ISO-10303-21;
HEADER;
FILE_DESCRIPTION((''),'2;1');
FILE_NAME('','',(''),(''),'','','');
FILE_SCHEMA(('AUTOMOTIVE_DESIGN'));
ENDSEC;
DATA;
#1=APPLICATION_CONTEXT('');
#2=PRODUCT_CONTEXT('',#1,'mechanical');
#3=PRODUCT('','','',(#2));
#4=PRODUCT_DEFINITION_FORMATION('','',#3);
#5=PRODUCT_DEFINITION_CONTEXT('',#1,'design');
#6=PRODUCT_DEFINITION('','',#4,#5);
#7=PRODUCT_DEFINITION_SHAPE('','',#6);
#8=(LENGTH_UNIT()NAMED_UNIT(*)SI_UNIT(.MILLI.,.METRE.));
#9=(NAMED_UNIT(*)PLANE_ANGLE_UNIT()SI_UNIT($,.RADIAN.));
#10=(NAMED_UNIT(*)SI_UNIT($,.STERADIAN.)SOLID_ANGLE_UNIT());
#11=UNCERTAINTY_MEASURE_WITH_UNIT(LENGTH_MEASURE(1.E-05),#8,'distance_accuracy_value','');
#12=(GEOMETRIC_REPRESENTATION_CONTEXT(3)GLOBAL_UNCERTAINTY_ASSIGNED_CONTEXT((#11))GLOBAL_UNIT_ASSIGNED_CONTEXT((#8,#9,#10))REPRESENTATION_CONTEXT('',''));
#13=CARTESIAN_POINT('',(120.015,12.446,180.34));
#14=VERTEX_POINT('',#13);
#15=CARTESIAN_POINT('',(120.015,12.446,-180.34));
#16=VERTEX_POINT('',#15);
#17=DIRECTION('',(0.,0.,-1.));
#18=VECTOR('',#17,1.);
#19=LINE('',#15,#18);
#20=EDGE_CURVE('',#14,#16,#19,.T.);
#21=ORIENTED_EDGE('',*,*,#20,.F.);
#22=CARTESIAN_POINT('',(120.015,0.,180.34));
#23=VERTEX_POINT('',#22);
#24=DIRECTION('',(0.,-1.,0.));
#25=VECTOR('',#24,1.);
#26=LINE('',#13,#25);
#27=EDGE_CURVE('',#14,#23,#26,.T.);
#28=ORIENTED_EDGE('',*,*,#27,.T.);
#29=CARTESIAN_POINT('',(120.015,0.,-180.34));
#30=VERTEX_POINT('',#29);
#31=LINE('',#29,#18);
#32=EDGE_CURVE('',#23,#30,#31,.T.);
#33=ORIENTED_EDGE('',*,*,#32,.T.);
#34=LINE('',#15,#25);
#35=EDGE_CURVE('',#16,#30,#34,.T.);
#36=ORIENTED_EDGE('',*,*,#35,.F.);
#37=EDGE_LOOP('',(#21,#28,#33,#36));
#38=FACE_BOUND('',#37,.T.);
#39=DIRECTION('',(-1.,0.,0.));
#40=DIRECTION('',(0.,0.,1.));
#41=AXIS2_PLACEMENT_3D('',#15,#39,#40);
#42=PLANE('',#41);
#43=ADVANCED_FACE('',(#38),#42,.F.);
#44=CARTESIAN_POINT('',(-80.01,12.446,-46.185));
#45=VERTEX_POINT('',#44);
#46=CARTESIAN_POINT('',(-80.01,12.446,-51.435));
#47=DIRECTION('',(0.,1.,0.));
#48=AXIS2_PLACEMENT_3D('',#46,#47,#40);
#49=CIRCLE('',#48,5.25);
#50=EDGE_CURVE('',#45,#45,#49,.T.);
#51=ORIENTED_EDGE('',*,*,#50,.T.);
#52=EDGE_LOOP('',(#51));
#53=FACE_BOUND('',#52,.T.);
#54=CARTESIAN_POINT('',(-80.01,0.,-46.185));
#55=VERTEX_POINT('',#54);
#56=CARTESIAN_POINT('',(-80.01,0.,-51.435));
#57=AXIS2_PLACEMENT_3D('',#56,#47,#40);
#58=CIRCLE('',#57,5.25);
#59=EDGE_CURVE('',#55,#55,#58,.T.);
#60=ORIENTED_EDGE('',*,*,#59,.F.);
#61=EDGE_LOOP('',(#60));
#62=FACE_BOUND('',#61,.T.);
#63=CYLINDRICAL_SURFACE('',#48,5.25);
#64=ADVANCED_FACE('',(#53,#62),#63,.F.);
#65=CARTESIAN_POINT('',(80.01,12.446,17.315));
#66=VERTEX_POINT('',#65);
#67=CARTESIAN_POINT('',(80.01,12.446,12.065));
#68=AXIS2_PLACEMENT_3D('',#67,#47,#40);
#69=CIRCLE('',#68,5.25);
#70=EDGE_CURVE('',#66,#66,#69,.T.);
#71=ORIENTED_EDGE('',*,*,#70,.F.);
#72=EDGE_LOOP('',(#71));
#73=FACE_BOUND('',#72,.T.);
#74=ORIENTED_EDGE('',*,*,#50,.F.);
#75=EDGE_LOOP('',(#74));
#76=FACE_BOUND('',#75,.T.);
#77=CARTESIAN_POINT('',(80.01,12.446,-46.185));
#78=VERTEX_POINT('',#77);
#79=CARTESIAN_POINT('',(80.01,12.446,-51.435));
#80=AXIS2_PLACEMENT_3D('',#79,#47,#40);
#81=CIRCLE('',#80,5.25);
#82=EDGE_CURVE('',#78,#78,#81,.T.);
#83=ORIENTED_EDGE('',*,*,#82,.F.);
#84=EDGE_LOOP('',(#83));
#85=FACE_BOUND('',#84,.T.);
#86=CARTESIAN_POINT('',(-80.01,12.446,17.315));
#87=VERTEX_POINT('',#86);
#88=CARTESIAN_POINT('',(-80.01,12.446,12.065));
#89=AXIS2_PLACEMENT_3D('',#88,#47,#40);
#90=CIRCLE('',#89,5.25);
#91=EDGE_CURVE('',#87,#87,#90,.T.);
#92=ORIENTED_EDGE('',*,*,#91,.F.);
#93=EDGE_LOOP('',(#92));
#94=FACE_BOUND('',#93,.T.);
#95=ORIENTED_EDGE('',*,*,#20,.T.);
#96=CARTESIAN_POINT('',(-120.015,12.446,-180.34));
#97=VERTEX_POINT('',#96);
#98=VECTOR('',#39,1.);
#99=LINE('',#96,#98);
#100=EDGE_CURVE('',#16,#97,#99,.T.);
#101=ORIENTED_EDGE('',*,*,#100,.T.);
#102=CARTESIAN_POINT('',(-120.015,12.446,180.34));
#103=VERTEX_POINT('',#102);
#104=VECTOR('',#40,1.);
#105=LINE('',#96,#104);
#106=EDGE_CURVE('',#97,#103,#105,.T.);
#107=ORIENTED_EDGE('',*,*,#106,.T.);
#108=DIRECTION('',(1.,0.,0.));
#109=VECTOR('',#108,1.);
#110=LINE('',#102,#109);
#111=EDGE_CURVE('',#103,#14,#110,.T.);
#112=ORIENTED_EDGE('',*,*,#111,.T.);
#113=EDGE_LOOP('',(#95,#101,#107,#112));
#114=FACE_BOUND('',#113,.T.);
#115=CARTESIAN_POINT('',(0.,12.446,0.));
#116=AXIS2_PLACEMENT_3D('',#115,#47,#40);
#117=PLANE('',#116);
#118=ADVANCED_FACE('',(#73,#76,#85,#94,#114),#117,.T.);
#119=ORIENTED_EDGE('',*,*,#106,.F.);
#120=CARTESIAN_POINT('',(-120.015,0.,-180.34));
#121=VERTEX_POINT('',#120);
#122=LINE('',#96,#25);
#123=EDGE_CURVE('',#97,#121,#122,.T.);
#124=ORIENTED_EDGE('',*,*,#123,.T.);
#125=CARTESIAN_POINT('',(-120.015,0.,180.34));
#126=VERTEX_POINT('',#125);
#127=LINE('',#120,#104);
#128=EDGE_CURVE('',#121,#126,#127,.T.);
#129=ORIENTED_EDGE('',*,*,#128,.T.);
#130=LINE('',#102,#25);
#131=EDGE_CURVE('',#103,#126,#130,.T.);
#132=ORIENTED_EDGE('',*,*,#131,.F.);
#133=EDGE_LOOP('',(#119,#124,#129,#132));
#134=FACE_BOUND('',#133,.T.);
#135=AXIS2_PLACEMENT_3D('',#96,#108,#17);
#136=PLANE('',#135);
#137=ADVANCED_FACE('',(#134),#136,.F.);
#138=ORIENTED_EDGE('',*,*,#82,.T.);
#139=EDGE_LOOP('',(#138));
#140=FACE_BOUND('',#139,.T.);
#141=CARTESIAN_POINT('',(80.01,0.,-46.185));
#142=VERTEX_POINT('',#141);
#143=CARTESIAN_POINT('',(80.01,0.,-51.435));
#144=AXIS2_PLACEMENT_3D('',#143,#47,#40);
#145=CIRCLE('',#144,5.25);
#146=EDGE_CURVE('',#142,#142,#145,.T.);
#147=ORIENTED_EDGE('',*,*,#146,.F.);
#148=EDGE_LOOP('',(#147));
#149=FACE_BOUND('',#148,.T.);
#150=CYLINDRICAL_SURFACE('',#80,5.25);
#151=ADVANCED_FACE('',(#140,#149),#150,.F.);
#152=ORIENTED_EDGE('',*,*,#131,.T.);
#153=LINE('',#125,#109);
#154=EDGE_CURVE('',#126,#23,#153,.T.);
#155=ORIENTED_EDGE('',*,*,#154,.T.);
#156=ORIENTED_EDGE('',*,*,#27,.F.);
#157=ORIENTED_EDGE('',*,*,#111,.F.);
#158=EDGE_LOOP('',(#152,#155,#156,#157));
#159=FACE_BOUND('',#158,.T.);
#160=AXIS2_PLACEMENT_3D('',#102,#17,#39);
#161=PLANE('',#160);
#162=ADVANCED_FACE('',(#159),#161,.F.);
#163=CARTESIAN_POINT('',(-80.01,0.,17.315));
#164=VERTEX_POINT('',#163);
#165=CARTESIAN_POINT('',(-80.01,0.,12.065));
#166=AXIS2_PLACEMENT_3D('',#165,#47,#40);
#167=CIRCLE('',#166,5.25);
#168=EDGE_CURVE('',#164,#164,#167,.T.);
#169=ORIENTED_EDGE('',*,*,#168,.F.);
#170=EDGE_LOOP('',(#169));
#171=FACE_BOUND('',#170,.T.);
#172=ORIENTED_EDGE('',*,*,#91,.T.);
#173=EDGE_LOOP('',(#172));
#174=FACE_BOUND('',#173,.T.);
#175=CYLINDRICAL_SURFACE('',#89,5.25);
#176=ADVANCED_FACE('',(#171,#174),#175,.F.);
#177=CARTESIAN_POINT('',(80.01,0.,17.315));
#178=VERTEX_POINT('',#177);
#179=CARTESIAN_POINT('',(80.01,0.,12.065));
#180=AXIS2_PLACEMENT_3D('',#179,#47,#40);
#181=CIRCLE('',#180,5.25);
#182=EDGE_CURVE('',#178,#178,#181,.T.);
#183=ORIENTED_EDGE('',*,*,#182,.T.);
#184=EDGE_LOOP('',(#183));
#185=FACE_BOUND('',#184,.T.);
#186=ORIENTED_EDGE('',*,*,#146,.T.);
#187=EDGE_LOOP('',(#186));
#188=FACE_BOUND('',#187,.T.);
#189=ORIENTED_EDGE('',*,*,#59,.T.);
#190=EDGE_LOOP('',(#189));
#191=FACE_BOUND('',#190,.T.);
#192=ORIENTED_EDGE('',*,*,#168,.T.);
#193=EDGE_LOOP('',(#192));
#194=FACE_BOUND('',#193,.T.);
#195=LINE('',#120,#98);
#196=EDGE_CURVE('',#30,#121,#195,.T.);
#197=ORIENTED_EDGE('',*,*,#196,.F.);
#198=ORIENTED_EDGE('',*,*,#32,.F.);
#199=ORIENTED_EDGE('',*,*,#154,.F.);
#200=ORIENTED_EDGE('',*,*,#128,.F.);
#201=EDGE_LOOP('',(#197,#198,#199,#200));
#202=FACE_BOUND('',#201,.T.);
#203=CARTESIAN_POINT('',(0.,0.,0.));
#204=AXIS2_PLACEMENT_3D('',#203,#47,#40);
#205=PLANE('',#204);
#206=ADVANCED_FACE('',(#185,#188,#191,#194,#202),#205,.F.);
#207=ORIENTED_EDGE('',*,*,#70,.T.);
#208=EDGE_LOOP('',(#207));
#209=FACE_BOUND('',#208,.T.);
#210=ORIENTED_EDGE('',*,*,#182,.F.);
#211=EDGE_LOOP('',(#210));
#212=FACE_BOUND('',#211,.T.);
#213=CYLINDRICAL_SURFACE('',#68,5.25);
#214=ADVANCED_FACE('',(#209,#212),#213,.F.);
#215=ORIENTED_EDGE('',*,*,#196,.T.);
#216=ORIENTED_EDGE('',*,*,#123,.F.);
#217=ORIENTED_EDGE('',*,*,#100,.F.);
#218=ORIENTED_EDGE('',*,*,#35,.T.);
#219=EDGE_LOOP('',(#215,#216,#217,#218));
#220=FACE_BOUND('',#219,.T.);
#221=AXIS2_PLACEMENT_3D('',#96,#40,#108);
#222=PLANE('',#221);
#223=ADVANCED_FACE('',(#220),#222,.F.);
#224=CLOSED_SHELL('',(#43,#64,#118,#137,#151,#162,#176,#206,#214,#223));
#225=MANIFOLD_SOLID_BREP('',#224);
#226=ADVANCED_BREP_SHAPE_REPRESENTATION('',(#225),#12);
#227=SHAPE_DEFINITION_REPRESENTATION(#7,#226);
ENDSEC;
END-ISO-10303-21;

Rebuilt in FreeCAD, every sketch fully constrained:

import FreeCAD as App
import Part
import Sketcher
from FreeCAD import Vector
Q = App.Units.Quantity

doc = App.newDocument("Part")
body = doc.addObject("PartDesign::Body", "Body")

# Sketch on XZ plane
sketch1 = body.newObject("Sketcher::SketchObject", "Sketch")
sketch1.AttachmentSupport = (doc.getObject("XZ_Plane"), [""])
sketch1.MapMode = "FlatFace"
sketch1.addGeometry([
    Part.LineSegment(Vector(-120.015, -180.34, 0), Vector(-120.015, 180.34, 0)),
    Part.LineSegment(Vector(-120.015, 180.34, 0), Vector(120.015, 180.34, 0)),
    Part.LineSegment(Vector(120.015, 180.34, 0), Vector(120.015, -180.34, 0)),
    Part.LineSegment(Vector(120.015, -180.34, 0), Vector(-120.015, -180.34, 0)),
], False)
sketch1.addConstraint([
    Sketcher.Constraint("Coincident", 0, 2, 1, 1),
    Sketcher.Constraint("Coincident", 1, 2, 2, 1),
    Sketcher.Constraint("Coincident", 2, 2, 3, 1),
    Sketcher.Constraint("Coincident", 3, 2, 0, 1),
    Sketcher.Constraint("Vertical", 0),
    Sketcher.Constraint("Horizontal", 1),
    Sketcher.Constraint("Vertical", 2),
    Sketcher.Constraint("Horizontal", 3),
    Sketcher.Constraint("Symmetric", 0, 2, 2, 2, -1, 1),
    Sketcher.Constraint("DistanceY", 0, 1, 0, 2, Q("14.2 in")),
    Sketcher.Constraint("DistanceX", 1, 1, 1, 2, Q("9.45 in")),
])
pad1 = body.newObject("PartDesign::Pad", "Pad")
pad1.Profile = sketch1
pad1.Length = Q("0.49 in")
pad1.Reversed = True

# Sketch on YZ plane
sketch2 = body.newObject("Sketcher::SketchObject", "Sketch001")
sketch2.AttachmentSupport = (doc.getObject("YZ_Plane"), [""])
sketch2.MapMode = "FlatFace"
sketch2.AttachmentOffset = App.Placement(Vector(0, 0, 3.15 * 25.4), App.Rotation())
sketch2.addGeometry([
    Part.LineSegment(Vector(-15.708519, -51.435, 0), Vector(12.446, -51.435, 0)),
    Part.LineSegment(Vector(12.446, -51.435, 0), Vector(12.446, -46.185, 0)),
    Part.LineSegment(Vector(12.446, -46.185, 0), Vector(-12.554001, -46.185, 0)),
    Part.LineSegment(Vector(-12.554001, -46.185, 0), Vector(-15.708519, -51.435, 0)),
], False)
sketch2.addGeometry(Part.LineSegment(Vector(12.446, -51.435, 0), Vector(-15.708519, -51.435, 0)), True)  # axis
sketch2.addConstraint([
    Sketcher.Constraint("Coincident", 0, 2, 1, 1),
    Sketcher.Constraint("Coincident", 1, 2, 2, 1),
    Sketcher.Constraint("Coincident", 2, 2, 3, 1),
    Sketcher.Constraint("Coincident", 3, 2, 0, 1),
    Sketcher.Constraint("Horizontal", 0),
    Sketcher.Constraint("Vertical", 1),
    Sketcher.Constraint("Horizontal", 2),
    Sketcher.Constraint("Horizontal", 4),
    Sketcher.Constraint("Coincident", 4, 1, 0, 2),
    Sketcher.Constraint("Equal", 0, 4),
    Sketcher.Constraint("Angle", 3, Q("-121 deg")),
    Sketcher.Constraint("DistanceX", -1, 1, 0, 2, Q("0.49 in")),
    Sketcher.Constraint("DistanceY", 0, 2, -1, 1, Q("2.025 in")),
    Sketcher.Constraint("DistanceX", 2, 2, 2, 1, Q("25.000001 mm")),
    Sketcher.Constraint("DistanceY", 1, 1, 1, 2, Q("5.25 mm")),
])
groove = body.newObject("PartDesign::Groove", "Groove")
groove.Profile = sketch2
groove.ReferenceAxis = (sketch2, ["Axis0"])
groove.Angle = 360
doc.recompute()

linearpattern = body.newObject("PartDesign::LinearPattern", "LinearPattern")
linearpattern.Originals = [groove]
linearpattern.Direction = (doc.getObject("Z_Axis"), [""])
linearpattern.Mode = "offset"
linearpattern.Offset = Q("2.5 in")
linearpattern.Occurrences = 2
body.Tip = linearpattern
doc.recompute()

mirrored = body.newObject("PartDesign::Mirrored", "Mirrored")
mirrored.Originals = [groove]
mirrored.MirrorPlane = (doc.getObject("YZ_Plane"), [""])
body.Tip = mirrored

# Sketch on YZ plane
sketch3 = body.newObject("Sketcher::SketchObject", "Sketch002")
sketch3.AttachmentSupport = (doc.getObject("YZ_Plane"), [""])
sketch3.MapMode = "FlatFace"
sketch3.AttachmentOffset = App.Placement(Vector(0, 0, -3.15 * 25.4), App.Rotation())
sketch3.addGeometry([
    Part.LineSegment(Vector(12.446, 12.065, 0), Vector(-15.708519, 12.065, 0)),
    Part.LineSegment(Vector(-15.708519, 12.065, 0), Vector(-12.554001, 17.315, 0)),
    Part.LineSegment(Vector(-12.554001, 17.315, 0), Vector(12.446, 17.315, 0)),
    Part.LineSegment(Vector(12.446, 17.315, 0), Vector(12.446, 12.065, 0)),
], False)
sketch3.addGeometry(Part.LineSegment(Vector(-15.708519, 12.065, 0), Vector(12.446, 12.065, 0)), True)  # axis
sketch3.addConstraint([
    Sketcher.Constraint("Coincident", 0, 2, 1, 1),
    Sketcher.Constraint("Coincident", 1, 2, 2, 1),
    Sketcher.Constraint("Coincident", 2, 2, 3, 1),
    Sketcher.Constraint("Coincident", 3, 2, 0, 1),
    Sketcher.Constraint("Horizontal", 0),
    Sketcher.Constraint("Horizontal", 2),
    Sketcher.Constraint("Vertical", 3),
    Sketcher.Constraint("Horizontal", 4),
    Sketcher.Constraint("Coincident", 4, 1, 0, 2),
    Sketcher.Constraint("Vertical", 2, 2, 4, 2),
    Sketcher.Constraint("Angle", 1, Q("59 deg")),
    Sketcher.Constraint("DistanceX", -1, 1, 2, 2, Q("0.49 in")),
    Sketcher.Constraint("DistanceY", -1, 1, 0, 2, Q("0.475 in")),
    Sketcher.Constraint("DistanceX", 2, 1, 2, 2, Q("25.000001 mm")),
    Sketcher.Constraint("DistanceY", 3, 2, 3, 1, Q("5.25 mm")),
])
groove2 = body.newObject("PartDesign::Groove", "Groove001")
groove2.Profile = sketch3
groove2.ReferenceAxis = (sketch3, ["Axis0"])
groove2.Angle = 360

doc.recompute()
